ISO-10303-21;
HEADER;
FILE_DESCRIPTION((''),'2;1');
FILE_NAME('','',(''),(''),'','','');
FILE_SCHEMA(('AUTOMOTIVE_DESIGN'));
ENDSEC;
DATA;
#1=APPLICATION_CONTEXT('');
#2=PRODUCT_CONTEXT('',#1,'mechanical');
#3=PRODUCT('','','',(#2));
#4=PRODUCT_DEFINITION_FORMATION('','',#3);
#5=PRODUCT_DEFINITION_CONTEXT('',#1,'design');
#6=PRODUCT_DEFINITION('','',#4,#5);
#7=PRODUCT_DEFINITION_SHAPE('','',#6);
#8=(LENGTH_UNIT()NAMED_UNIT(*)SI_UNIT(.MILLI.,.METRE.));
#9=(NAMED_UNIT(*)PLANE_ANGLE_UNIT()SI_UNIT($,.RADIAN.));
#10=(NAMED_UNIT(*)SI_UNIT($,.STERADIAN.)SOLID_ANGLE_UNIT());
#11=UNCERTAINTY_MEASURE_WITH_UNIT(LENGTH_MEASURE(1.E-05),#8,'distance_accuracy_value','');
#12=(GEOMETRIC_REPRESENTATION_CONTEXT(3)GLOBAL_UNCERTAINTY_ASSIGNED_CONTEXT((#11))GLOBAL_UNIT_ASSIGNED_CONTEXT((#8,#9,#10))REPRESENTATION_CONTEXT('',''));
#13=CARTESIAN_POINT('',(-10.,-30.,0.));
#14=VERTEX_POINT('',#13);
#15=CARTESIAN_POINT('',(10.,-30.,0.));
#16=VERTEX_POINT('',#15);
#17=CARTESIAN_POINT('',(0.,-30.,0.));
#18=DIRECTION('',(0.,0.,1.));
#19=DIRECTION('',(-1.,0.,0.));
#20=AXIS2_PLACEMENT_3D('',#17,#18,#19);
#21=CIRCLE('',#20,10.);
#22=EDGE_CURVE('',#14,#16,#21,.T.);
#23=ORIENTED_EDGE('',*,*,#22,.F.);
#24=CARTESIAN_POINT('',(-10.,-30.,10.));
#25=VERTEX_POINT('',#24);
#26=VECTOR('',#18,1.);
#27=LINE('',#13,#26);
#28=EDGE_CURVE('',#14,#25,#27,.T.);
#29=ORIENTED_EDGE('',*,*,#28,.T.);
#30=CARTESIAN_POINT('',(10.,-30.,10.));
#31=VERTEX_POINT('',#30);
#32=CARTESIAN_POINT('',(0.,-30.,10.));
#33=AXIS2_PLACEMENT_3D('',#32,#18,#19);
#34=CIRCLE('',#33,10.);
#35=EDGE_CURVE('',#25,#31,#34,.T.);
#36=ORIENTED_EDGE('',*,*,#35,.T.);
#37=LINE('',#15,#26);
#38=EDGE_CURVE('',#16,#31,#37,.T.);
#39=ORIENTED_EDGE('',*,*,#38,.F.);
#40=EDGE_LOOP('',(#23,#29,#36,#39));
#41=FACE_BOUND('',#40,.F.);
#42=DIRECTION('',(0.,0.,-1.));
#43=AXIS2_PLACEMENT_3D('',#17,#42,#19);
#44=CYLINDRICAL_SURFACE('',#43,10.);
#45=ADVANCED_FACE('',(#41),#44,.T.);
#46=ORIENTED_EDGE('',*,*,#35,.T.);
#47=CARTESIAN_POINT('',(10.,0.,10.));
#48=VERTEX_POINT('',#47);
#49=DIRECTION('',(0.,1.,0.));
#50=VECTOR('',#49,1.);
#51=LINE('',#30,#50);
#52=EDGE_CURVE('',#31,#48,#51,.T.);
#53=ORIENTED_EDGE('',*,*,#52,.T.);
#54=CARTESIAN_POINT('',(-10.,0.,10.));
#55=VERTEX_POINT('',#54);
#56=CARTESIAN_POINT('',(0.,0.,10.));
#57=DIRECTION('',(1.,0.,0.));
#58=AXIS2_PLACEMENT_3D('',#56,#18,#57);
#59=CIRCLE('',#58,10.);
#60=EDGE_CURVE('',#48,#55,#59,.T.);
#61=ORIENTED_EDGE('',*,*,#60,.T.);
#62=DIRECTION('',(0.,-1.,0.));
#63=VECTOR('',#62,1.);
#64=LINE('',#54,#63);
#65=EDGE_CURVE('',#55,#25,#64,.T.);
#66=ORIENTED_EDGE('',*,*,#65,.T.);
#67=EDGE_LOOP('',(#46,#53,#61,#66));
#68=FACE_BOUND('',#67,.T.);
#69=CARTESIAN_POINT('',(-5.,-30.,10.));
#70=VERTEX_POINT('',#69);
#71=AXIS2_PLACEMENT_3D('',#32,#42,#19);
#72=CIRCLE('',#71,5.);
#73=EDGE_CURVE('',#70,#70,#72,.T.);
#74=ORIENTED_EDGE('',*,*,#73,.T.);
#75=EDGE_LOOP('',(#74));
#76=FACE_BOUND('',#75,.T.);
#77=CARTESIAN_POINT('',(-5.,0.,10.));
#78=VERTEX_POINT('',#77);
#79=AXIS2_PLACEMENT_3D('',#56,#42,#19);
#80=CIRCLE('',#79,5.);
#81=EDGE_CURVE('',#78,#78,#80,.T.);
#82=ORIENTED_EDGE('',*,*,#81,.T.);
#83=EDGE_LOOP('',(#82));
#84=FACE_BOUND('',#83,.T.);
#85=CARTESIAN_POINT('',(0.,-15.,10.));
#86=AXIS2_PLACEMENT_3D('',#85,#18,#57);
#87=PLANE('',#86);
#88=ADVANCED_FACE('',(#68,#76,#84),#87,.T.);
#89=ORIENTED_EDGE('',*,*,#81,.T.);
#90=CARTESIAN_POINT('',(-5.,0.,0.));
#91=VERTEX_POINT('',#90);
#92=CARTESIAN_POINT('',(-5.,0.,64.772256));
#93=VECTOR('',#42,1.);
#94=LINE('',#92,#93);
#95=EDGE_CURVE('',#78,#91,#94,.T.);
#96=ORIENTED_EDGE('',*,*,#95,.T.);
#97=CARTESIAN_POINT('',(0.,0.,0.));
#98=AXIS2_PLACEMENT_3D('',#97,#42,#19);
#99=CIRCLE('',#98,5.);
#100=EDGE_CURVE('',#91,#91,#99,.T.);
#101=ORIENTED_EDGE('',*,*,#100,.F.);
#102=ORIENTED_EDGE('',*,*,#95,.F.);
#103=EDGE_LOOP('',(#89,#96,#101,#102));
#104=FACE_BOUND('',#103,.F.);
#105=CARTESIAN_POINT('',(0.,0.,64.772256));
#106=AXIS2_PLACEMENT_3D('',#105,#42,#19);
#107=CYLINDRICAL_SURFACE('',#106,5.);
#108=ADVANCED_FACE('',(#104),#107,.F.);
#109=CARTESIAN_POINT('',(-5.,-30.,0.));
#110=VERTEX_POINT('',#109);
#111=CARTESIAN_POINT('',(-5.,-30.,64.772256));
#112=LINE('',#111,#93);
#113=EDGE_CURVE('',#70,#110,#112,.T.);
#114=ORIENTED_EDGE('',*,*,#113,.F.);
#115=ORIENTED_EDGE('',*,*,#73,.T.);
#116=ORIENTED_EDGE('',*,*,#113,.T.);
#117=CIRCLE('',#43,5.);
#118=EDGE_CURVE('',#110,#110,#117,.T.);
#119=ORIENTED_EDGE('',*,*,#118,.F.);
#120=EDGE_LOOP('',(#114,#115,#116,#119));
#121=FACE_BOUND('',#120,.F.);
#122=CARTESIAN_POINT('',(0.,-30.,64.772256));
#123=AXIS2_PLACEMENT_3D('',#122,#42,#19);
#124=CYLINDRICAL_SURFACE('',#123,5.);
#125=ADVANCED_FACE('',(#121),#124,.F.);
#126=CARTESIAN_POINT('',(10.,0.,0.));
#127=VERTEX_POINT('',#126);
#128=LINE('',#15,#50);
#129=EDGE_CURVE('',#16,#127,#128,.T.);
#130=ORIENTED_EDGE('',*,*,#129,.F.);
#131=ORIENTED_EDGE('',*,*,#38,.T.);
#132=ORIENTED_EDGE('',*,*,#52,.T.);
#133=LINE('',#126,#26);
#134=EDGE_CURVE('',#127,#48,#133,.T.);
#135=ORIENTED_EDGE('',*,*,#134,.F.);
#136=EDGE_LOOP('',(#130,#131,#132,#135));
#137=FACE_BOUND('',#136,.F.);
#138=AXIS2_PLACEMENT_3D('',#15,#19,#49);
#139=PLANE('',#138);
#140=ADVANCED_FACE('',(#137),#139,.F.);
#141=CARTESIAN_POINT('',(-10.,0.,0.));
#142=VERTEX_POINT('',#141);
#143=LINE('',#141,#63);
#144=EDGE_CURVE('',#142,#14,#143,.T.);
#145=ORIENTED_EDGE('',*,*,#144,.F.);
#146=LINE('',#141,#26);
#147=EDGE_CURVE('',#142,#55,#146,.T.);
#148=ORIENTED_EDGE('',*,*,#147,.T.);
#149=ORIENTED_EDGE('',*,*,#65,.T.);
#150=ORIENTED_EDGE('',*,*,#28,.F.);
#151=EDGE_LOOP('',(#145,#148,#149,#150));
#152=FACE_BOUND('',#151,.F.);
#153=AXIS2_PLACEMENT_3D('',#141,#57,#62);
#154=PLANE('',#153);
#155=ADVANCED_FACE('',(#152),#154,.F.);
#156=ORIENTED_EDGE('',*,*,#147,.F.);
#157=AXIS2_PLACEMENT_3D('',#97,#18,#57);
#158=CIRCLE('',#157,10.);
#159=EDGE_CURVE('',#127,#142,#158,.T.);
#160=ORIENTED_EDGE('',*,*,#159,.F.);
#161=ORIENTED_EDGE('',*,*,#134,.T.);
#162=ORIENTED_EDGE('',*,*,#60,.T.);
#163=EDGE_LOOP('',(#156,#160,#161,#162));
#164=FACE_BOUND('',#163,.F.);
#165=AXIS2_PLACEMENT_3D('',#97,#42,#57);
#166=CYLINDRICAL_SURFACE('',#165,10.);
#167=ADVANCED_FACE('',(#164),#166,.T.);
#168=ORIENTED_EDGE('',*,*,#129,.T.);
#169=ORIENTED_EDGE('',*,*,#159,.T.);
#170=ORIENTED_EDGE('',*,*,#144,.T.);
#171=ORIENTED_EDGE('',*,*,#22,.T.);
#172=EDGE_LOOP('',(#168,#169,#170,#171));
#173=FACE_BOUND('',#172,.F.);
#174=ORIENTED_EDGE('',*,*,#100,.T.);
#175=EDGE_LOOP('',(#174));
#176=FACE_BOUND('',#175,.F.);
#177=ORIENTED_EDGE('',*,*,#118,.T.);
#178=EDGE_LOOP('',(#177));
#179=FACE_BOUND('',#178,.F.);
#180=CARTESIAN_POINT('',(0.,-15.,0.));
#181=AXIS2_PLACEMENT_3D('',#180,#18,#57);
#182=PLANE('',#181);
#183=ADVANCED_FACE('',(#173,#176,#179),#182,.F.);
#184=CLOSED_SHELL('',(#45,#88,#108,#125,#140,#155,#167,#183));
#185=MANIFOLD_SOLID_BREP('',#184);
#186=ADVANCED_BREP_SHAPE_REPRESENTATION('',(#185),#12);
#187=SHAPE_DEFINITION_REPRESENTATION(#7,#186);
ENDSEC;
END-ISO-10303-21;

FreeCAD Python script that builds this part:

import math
import FreeCAD as App
import Part
import Sketcher

doc = App.newDocument("Part")
body = doc.addObject("PartDesign::Body", "Body")

# Sketch on XY plane
sketch1 = body.newObject("Sketcher::SketchObject", "Sketch")
sketch1.AttachmentSupport = (doc.getObject("XY_Plane"), [""])
sketch1.MapMode = "FlatFace"
sketch1.addGeometry([
    Part.LineSegment(App.Vector(10, -30, 0), App.Vector(10, 0, 0)),
    Part.ArcOfCircle(Part.Circle(App.Vector(0, 0, 0), App.Vector(0, 0, 1), 10), math.radians(0), math.radians(180)),
    Part.LineSegment(App.Vector(-10, 0, 0), App.Vector(-10, -30, 0)),
    Part.ArcOfCircle(Part.Circle(App.Vector(0, -30, 0), App.Vector(0, 0, 1), 10), math.radians(180), math.radians(360)),
], False)
sketch1.addConstraint([
    Sketcher.Constraint("Tangent", 0, 2, 1, 1),
    Sketcher.Constraint("Tangent", 1, 2, 2, 1),
    Sketcher.Constraint("Tangent", 2, 2, 3, 1),
    Sketcher.Constraint("Tangent", 3, 2, 0, 1),
    Sketcher.Constraint("Vertical", 0),
    Sketcher.Constraint("Vertical", 2),
    Sketcher.Constraint("Coincident", 1, 3, -1, 1),
    Sketcher.Constraint("Radius", 1, 10.0),
    Sketcher.Constraint("DistanceY", 0, 1, 0, 2, 30.0),
])
pad1 = body.newObject("PartDesign::Pad", "Pad")
pad1.Profile = sketch1
pad1.Length = 10

# Sketch on XY plane
sketch2 = body.newObject("Sketcher::SketchObject", "Sketch001")
sketch2.AttachmentSupport = (doc.getObject("XY_Plane"), [""])
sketch2.MapMode = "FlatFace"
sketch2.AttachmentOffset = App.Placement(App.Vector(0, 0, 10), App.Rotation())
sketch2.addGeometry([
    Part.Circle(App.Vector(0, 0, 0), App.Vector(0, 0, 1), 5),
    Part.Circle(App.Vector(0, -30, 0), App.Vector(0, 0, 1), 5),
], False)
sketch2.addConstraint([
    Sketcher.Constraint("Coincident", 0, 3, -1, 1),
    Sketcher.Constraint("Equal", 0, 1),
    Sketcher.Constraint("PointOnObject", 1, 3, -2),
    Sketcher.Constraint("Diameter", 0, 10.0),
    Sketcher.Constraint("DistanceY", 1, 3, -1, 1, 30.0),
])
doc.recompute()
hole = body.newObject("PartDesign::Hole", "Hole")
hole.Profile = sketch2
hole.ThreadType = "None"
hole.Diameter = 10
hole.DepthType = "ThroughAll"

doc.recompute()
